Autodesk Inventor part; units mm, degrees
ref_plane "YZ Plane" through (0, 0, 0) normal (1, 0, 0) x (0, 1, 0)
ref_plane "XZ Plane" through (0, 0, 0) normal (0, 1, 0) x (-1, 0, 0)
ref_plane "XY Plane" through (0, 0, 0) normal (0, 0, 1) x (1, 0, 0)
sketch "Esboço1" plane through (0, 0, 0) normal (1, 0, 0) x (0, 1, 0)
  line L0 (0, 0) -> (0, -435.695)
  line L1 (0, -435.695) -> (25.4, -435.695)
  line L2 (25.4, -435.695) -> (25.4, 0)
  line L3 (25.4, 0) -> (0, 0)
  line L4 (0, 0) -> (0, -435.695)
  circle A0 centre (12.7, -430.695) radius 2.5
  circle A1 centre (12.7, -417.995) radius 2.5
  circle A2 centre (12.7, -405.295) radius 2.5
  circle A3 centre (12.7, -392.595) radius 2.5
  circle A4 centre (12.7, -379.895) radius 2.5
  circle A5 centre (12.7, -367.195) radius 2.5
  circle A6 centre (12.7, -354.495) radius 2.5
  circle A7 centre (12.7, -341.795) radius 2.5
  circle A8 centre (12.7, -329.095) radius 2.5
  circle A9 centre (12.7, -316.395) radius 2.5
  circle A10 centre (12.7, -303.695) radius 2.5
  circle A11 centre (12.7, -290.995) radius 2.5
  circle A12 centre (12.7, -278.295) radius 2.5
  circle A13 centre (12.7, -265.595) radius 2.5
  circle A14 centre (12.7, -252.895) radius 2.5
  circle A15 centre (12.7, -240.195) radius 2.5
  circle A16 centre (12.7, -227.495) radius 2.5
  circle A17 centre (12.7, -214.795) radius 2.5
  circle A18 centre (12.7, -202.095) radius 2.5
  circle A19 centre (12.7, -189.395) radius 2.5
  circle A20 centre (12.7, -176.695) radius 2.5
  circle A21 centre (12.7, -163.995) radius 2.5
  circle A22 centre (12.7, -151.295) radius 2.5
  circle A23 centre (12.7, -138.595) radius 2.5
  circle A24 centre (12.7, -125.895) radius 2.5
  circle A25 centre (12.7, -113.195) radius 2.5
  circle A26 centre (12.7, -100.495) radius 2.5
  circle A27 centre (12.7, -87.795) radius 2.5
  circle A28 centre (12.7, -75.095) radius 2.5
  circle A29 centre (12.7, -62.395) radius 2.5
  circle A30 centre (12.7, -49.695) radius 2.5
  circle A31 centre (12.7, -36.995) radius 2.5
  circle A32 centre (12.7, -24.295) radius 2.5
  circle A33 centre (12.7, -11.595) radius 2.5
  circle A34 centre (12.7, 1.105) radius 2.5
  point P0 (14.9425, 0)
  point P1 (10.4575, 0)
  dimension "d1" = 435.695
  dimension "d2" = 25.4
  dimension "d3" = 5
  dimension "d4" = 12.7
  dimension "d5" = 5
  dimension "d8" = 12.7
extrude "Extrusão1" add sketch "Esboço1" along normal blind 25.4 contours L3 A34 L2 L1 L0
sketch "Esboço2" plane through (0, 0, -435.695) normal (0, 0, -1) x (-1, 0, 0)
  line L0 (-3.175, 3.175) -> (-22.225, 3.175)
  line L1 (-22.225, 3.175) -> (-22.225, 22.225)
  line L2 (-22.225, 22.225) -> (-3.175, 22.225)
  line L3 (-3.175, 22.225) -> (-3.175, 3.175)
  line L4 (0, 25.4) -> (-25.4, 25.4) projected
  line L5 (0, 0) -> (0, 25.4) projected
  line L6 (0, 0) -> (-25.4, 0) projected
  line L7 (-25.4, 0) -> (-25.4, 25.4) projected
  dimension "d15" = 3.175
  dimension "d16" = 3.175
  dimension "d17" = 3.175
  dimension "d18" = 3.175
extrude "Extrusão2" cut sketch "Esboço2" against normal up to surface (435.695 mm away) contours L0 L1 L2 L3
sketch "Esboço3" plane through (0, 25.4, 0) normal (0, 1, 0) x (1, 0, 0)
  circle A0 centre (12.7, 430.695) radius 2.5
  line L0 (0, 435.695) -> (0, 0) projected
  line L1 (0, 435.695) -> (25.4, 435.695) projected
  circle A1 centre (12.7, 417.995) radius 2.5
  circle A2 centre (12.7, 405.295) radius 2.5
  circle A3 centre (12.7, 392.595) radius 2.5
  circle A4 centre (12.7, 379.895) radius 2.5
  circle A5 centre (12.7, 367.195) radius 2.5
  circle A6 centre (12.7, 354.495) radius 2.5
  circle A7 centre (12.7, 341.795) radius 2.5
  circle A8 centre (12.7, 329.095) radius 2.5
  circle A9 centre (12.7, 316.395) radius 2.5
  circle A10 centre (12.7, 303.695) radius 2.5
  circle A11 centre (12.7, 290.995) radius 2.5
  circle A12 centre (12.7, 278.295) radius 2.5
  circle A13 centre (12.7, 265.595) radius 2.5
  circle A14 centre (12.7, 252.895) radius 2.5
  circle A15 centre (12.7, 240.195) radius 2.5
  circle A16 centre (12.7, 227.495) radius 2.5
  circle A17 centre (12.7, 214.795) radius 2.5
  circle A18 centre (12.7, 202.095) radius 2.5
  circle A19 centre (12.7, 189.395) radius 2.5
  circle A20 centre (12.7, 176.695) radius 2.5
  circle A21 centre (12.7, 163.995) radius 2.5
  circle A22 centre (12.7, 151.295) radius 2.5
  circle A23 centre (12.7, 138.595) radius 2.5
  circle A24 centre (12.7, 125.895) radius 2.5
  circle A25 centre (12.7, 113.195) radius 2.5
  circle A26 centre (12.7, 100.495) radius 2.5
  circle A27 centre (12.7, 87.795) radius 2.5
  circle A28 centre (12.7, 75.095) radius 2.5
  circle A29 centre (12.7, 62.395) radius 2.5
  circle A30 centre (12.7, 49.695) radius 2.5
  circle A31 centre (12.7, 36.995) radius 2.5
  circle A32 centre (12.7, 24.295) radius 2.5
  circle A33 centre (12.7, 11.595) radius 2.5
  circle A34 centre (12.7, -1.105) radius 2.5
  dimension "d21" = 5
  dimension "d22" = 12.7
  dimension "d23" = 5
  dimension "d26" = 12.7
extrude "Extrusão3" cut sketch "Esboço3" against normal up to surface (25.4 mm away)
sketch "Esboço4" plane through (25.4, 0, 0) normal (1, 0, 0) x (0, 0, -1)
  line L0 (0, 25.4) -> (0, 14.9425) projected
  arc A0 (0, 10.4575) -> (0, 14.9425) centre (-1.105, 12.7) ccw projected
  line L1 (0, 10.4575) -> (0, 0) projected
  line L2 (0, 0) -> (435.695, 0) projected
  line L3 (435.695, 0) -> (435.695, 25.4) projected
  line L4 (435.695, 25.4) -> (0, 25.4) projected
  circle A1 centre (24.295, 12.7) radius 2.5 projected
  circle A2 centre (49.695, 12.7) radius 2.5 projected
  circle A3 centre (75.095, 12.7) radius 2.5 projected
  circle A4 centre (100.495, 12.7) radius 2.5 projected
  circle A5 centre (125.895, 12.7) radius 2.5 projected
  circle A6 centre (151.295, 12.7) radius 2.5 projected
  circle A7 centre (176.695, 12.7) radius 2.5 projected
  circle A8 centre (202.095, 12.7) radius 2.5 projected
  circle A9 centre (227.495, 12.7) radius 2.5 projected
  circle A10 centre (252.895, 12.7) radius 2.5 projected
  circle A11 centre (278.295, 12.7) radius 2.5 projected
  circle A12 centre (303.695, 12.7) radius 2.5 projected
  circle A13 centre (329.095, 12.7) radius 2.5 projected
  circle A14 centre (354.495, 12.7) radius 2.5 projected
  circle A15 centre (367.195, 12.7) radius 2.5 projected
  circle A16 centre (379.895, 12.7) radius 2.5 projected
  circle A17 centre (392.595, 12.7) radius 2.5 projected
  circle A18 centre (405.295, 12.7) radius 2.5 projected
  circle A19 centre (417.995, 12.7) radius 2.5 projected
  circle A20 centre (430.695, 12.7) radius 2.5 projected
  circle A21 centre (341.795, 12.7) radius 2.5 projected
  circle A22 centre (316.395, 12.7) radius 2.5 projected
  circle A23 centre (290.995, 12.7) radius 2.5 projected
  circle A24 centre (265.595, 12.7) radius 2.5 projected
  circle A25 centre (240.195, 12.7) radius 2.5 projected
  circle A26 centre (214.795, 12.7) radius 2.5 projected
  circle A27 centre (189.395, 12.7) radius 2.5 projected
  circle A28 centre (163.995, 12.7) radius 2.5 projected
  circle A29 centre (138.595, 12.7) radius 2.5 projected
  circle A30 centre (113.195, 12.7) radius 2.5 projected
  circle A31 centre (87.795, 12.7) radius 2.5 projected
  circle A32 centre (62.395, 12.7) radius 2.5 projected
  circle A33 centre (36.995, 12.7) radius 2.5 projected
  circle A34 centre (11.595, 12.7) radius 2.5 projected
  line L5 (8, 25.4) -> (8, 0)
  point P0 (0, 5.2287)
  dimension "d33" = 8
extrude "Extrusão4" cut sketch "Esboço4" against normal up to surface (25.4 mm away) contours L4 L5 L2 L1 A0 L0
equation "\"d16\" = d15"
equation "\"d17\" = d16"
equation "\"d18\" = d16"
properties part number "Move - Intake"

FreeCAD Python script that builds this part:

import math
import FreeCAD as App
import Part
import Sketcher

doc = App.newDocument("Part")
body = doc.addObject("PartDesign::Body", "Body")

# Sketch on YZ plane
sketch1 = body.newObject("Sketcher::SketchObject", "Sketch")
sketch1.AttachmentSupport = (doc.getObject("YZ_Plane"), [""])
sketch1.MapMode = "FlatFace"
sketch1.addGeometry(Part.LineSegment(App.Vector(10.457462, 0, 0), App.Vector(0, 0, 0)), False)
sketch1.addGeometry(Part.LineSegment(App.Vector(0, 0, 0), App.Vector(0, -435.695, 0)), False)
sketch1.addGeometry(Part.LineSegment(App.Vector(0, -435.695, 0), App.Vector(25.4, -435.695, 0)), False)
sketch1.addGeometry(Part.LineSegment(App.Vector(25.4, -435.695, 0), App.Vector(25.4, 0, 0)), False)
sketch1.addGeometry(Part.LineSegment(App.Vector(25.4, 0, 0), App.Vector(14.942538, 0, 0)), False)
sketch1.addGeometry(Part.ArcOfCircle(Part.Circle(App.Vector(12.7, 1.105, 0), App.Vector(0, 0, 1), 2.5), math.radians(-153.768441), math.radians(-26.231559)), False)
sketch1.addGeometry(Part.Circle(App.Vector(12.7, -430.695, 0), App.Vector(0, 0, 1), 2.5), False)
sketch1.addGeometry(Part.Circle(App.Vector(12.7, -417.995, 0), App.Vector(0, 0, 1), 2.5), False)
sketch1.addGeometry(Part.Circle(App.Vector(12.7, -405.295, 0), App.Vector(0, 0, 1), 2.5), False)
sketch1.addGeometry(Part.Circle(App.Vector(12.7, -392.595, 0), App.Vector(0, 0, 1), 2.5), False)
sketch1.addGeometry(Part.Circle(App.Vector(12.7, -379.895, 0), App.Vector(0, 0, 1), 2.5), False)
sketch1.addGeometry(Part.Circle(App.Vector(12.7, -367.195, 0), App.Vector(0, 0, 1), 2.5), False)
sketch1.addGeometry(Part.Circle(App.Vector(12.7, -354.495, 0), App.Vector(0, 0, 1), 2.5), False)
sketch1.addGeometry(Part.Circle(App.Vector(12.7, -341.795, 0), App.Vector(0, 0, 1), 2.5), False)
sketch1.addGeometry(Part.Circle(App.Vector(12.7, -329.095, 0), App.Vector(0, 0, 1), 2.5), False)
sketch1.addGeometry(Part.Circle(App.Vector(12.7, -316.395, 0), App.Vector(0, 0, 1), 2.5), False)
sketch1.addGeometry(Part.Circle(App.Vector(12.7, -303.695, 0), App.Vector(0, 0, 1), 2.5), False)
sketch1.addGeometry(Part.Circle(App.Vector(12.7, -290.995, 0), App.Vector(0, 0, 1), 2.5), False)
sketch1.addGeometry(Part.Circle(App.Vector(12.7, -278.295, 0), App.Vector(0, 0, 1), 2.5), False)
sketch1.addGeometry(Part.Circle(App.Vector(12.7, -265.595, 0), App.Vector(0, 0, 1), 2.5), False)
sketch1.addGeometry(Part.Circle(App.Vector(12.7, -252.895, 0), App.Vector(0, 0, 1), 2.5), False)
sketch1.addGeometry(Part.Circle(App.Vector(12.7, -240.195, 0), App.Vector(0, 0, 1), 2.5), False)
sketch1.addGeometry(Part.Circle(App.Vector(12.7, -227.495, 0), App.Vector(0, 0, 1), 2.5), False)
sketch1.addGeometry(Part.Circle(App.Vector(12.7, -214.795, 0), App.Vector(0, 0, 1), 2.5), False)
sketch1.addGeometry(Part.Circle(App.Vector(12.7, -202.095, 0), App.Vector(0, 0, 1), 2.5), False)
sketch1.addGeometry(Part.Circle(App.Vector(12.7, -189.395, 0), App.Vector(0, 0, 1), 2.5), False)
sketch1.addGeometry(Part.Circle(App.Vector(12.7, -176.695, 0), App.Vector(0, 0, 1), 2.5), False)
sketch1.addGeometry(Part.Circle(App.Vector(12.7, -163.995, 0), App.Vector(0, 0, 1), 2.5), False)
sketch1.addGeometry(Part.Circle(App.Vector(12.7, -151.295, 0), App.Vector(0, 0, 1), 2.5), False)
sketch1.addGeometry(Part.Circle(App.Vector(12.7, -138.595, 0), App.Vector(0, 0, 1), 2.5), False)
sketch1.addGeometry(Part.Circle(App.Vector(12.7, -125.895, 0), App.Vector(0, 0, 1), 2.5), False)
sketch1.addGeometry(Part.Circle(App.Vector(12.7, -113.195, 0), App.Vector(0, 0, 1), 2.5), False)
sketch1.addGeometry(Part.Circle(App.Vector(12.7, -100.495, 0), App.Vector(0, 0, 1), 2.5), False)
sketch1.addGeometry(Part.Circle(App.Vector(12.7, -87.795, 0), App.Vector(0, 0, 1), 2.5), False)
sketch1.addGeometry(Part.Circle(App.Vector(12.7, -75.095, 0), App.Vector(0, 0, 1), 2.5), False)
sketch1.addGeometry(Part.Circle(App.Vector(12.7, -62.395, 0), App.Vector(0, 0, 1), 2.5), False)
sketch1.addGeometry(Part.Circle(App.Vector(12.7, -49.695, 0), App.Vector(0, 0, 1), 2.5), False)
sketch1.addGeometry(Part.Circle(App.Vector(12.7, -36.995, 0), App.Vector(0, 0, 1), 2.5), False)
sketch1.addGeometry(Part.Circle(App.Vector(12.7, -24.295, 0), App.Vector(0, 0, 1), 2.5), False)
sketch1.addGeometry(Part.Circle(App.Vector(12.7, -11.595, 0), App.Vector(0, 0, 1), 2.5), False)
sketch1.addConstraint(Sketcher.Constraint("Coincident", 0, 2, 1, 1))
sketch1.addConstraint(Sketcher.Constraint("Coincident", 1, 2, 2, 1))
sketch1.addConstraint(Sketcher.Constraint("Coincident", 2, 2, 3, 1))
sketch1.addConstraint(Sketcher.Constraint("Coincident", 3, 2, 4, 1))
sketch1.addConstraint(Sketcher.Constraint("Coincident", 4, 2, 5, 2))
sketch1.addConstraint(Sketcher.Constraint("Coincident", 5, 1, 0, 1))
sketch1.addConstraint(Sketcher.Constraint("Horizontal", 0))
sketch1.addConstraint(Sketcher.Constraint("Vertical", 1))
sketch1.addConstraint(Sketcher.Constraint("Horizontal", 2))
sketch1.addConstraint(Sketcher.Constraint("Vertical", 3))
sketch1.addConstraint(Sketcher.Constraint("Horizontal", 4))
sketch1.addConstraint(Sketcher.Constraint("Coincident", 0, 2, -1, 1))
sketch1.addConstraint(Sketcher.Constraint("Equal", 5, 6))
sketch1.addConstraint(Sketcher.Constraint("Equal", 6, 7))
sketch1.addConstraint(Sketcher.Constraint("Equal", 7, 8))
sketch1.addConstraint(Sketcher.Constraint("Equal", 8, 9))
sketch1.addConstraint(Sketcher.Constraint("Equal", 9, 10))
sketch1.addConstraint(Sketcher.Constraint("Equal", 10, 11))
sketch1.addConstraint(Sketcher.Constraint("Equal", 11, 12))
sketch1.addConstraint(Sketcher.Constraint("Equal", 12, 13))
sketch1.addConstraint(Sketcher.Constraint("Equal", 13, 14))
sketch1.addConstraint(Sketcher.Constraint("Equal", 14, 15))
sketch1.addConstraint(Sketcher.Constraint("Equal", 15, 16))
sketch1.addConstraint(Sketcher.Constraint("Equal", 16, 17))
sketch1.addConstraint(Sketcher.Constraint("Equal", 17, 18))
sketch1.addConstraint(Sketcher.Constraint("Equal", 18, 19))
sketch1.addConstraint(Sketcher.Constraint("Equal", 19, 20))
sketch1.addConstraint(Sketcher.Constraint("Equal", 20, 21))
sketch1.addConstraint(Sketcher.Constraint("Equal", 21, 22))
sketch1.addConstraint(Sketcher.Constraint("Equal", 22, 23))
sketch1.addConstraint(Sketcher.Constraint("Equal", 23, 24))
sketch1.addConstraint(Sketcher.Constraint("Equal", 24, 25))
sketch1.addConstraint(Sketcher.Constraint("Equal", 25, 26))
sketch1.addConstraint(Sketcher.Constraint("Equal", 26, 27))
sketch1.addConstraint(Sketcher.Constraint("Equal", 27, 28))
sketch1.addConstraint(Sketcher.Constraint("Equal", 28, 29))
sketch1.addConstraint(Sketcher.Constraint("Equal", 29, 30))
sketch1.addConstraint(Sketcher.Constraint("Equal", 30, 31))
sketch1.addConstraint(Sketcher.Constraint("Equal", 31, 32))
sketch1.addConstraint(Sketcher.Constraint("Equal", 32, 33))
sketch1.addConstraint(Sketcher.Constraint("Equal", 33, 34))
sketch1.addConstraint(Sketcher.Constraint("Equal", 34, 35))
sketch1.addConstraint(Sketcher.Constraint("Equal", 35, 36))
sketch1.addConstraint(Sketcher.Constraint("Equal", 36, 37))
sketch1.addConstraint(Sketcher.Constraint("Equal", 37, 38))
sketch1.addConstraint(Sketcher.Constraint("Equal", 38, 39))
sketch1.addConstraint(Sketcher.Constraint("PointOnObject", 3, 2, -1))
sketch1.addConstraint(Sketcher.Constraint("Vertical", 5, 3, 6, 3))
sketch1.addConstraint(Sketcher.Constraint("Vertical", 6, 3, 7, 3))
sketch1.addConstraint(Sketcher.Constraint("Vertical", 7, 3, 8, 3))
sketch1.addConstraint(Sketcher.Constraint("Vertical", 8, 3, 9, 3))
sketch1.addConstraint(Sketcher.Constraint("Vertical", 9, 3, 10, 3))
sketch1.addConstraint(Sketcher.Constraint("Vertical", 10, 3, 11, 3))
sketch1.addConstraint(Sketcher.Constraint("Vertical", 11, 3, 12, 3))
sketch1.addConstraint(Sketcher.Constraint("Vertical", 12, 3, 13, 3))
sketch1.addConstraint(Sketcher.Constraint("Vertical", 13, 3, 14, 3))
sketch1.addConstraint(Sketcher.Constraint("Vertical", 14, 3, 15, 3))
sketch1.addConstraint(Sketcher.Constraint("Vertical", 15, 3, 16, 3))
sketch1.addConstraint(Sketcher.Constraint("Vertical", 16, 3, 17, 3))
sketch1.addConstraint(Sketcher.Constraint("Vertical", 17, 3, 18, 3))
sketch1.addConstraint(Sketcher.Constraint("Vertical", 18, 3, 19, 3))
sketch1.addConstraint(Sketcher.Constraint("Vertical", 19, 3, 20, 3))
sketch1.addConstraint(Sketcher.Constraint("Vertical", 20, 3, 21, 3))
sketch1.addConstraint(Sketcher.Constraint("Vertical", 21, 3, 22, 3))
sketch1.addConstraint(Sketcher.Constraint("Vertical", 22, 3, 23, 3))
sketch1.addConstraint(Sketcher.Constraint("Vertical", 23, 3, 24, 3))
sketch1.addConstraint(Sketcher.Constraint("Vertical", 24, 3, 25, 3))
sketch1.addConstraint(Sketcher.Constraint("Vertical", 25, 3, 26, 3))
sketch1.addConstraint(Sketcher.Constraint("Vertical", 26, 3, 27, 3))
sketch1.addConstraint(Sketcher.Constraint("Vertical", 27, 3, 28, 3))
sketch1.addConstraint(Sketcher.Constraint("Vertical", 28, 3, 29, 3))
sketch1.addConstraint(Sketcher.Constraint("Vertical", 29, 3, 30, 3))
sketch1.addConstraint(Sketcher.Constraint("Vertical", 30, 3, 31, 3))
sketch1.addConstraint(Sketcher.Constraint("Vertical", 31, 3, 32, 3))
sketch1.addConstraint(Sketcher.Constraint("Vertical", 32, 3, 33, 3))
sketch1.addConstraint(Sketcher.Constraint("Vertical", 33, 3, 34, 3))
sketch1.addConstraint(Sketcher.Constraint("Vertical", 34, 3, 35, 3))
sketch1.addConstraint(Sketcher.Constraint("Vertical", 35, 3, 36, 3))
sketch1.addConstraint(Sketcher.Constraint("Vertical", 36, 3, 37, 3))
sketch1.addConstraint(Sketcher.Constraint("Vertical", 37, 3, 38, 3))
sketch1.addConstraint(Sketcher.Constraint("Vertical", 38, 3, 39, 3))
sketch1.addConstraint(Sketcher.Constraint("Equal", 0, 4))
sketch1.addConstraint(Sketcher.Constraint("Diameter", 6, 5.0))
sketch1.addConstraint(Sketcher.Constraint("DistanceX", 2, 1, 2, 2, 25.4))
sketch1.addConstraint(Sketcher.Constraint("DistanceY", 1, 2, 6, 3, 5.0))
sketch1.addConstraint(Sketcher.Constraint("DistanceY", 6, 3, 7, 3, 12.7))
sketch1.addConstraint(Sketcher.Constraint("DistanceY", 7, 3, 8, 3, 12.7))
sketch1.addConstraint(Sketcher.Constraint("DistanceY", 8, 3, 9, 3, 12.7))
sketch1.addConstraint(Sketcher.Constraint("DistanceY", 9, 3, 10, 3, 12.7))
sketch1.addConstraint(Sketcher.Constraint("DistanceY", 10, 3, 11, 3, 12.7))
sketch1.addConstraint(Sketcher.Constraint("DistanceY", 11, 3, 12, 3, 12.7))
sketch1.addConstraint(Sketcher.Constraint("DistanceY", 12, 3, 13, 3, 12.7))
sketch1.addConstraint(Sketcher.Constraint("DistanceY", 13, 3, 14, 3, 12.7))
sketch1.addConstraint(Sketcher.Constraint("DistanceY", 14, 3, 15, 3, 12.7))
sketch1.addConstraint(Sketcher.Constraint("DistanceY", 15, 3, 16, 3, 12.7))
sketch1.addConstraint(Sketcher.Constraint("DistanceY", 16, 3, 17, 3, 12.7))
sketch1.addConstraint(Sketcher.Constraint("DistanceY", 17, 3, 18, 3, 12.7))
sketch1.addConstraint(Sketcher.Constraint("DistanceY", 18, 3, 19, 3, 12.7))
sketch1.addConstraint(Sketcher.Constraint("DistanceY", 19, 3, 20, 3, 12.7))
sketch1.addConstraint(Sketcher.Constraint("DistanceY", 20, 3, 21, 3, 12.7))
sketch1.addConstraint(Sketcher.Constraint("DistanceY", 21, 3, 22, 3, 12.7))
sketch1.addConstraint(Sketcher.Constraint("DistanceY", 22, 3, 23, 3, 12.7))
sketch1.addConstraint(Sketcher.Constraint("DistanceY", 23, 3, 24, 3, 12.7))
sketch1.addConstraint(Sketcher.Constraint("DistanceY", 24, 3, 25, 3, 12.7))
sketch1.addConstraint(Sketcher.Constraint("DistanceY", 25, 3, 26, 3, 12.7))
sketch1.addConstraint(Sketcher.Constraint("DistanceY", 26, 3, 27, 3, 12.7))
sketch1.addConstraint(Sketcher.Constraint("DistanceY", 27, 3, 28, 3, 12.7))
sketch1.addConstraint(Sketcher.Constraint("DistanceY", 28, 3, 29, 3, 12.7))
sketch1.addConstraint(Sketcher.Constraint("DistanceY", 29, 3, 30, 3, 12.7))
sketch1.addConstraint(Sketcher.Constraint("DistanceY", 30, 3, 31, 3, 12.7))
sketch1.addConstraint(Sketcher.Constraint("DistanceY", 31, 3, 32, 3, 12.7))
sketch1.addConstraint(Sketcher.Constraint("DistanceY", 32, 3, 33, 3, 12.7))
sketch1.addConstraint(Sketcher.Constraint("DistanceY", 33, 3, 34, 3, 12.7))
sketch1.addConstraint(Sketcher.Constraint("DistanceY", 34, 3, 35, 3, 12.7))
sketch1.addConstraint(Sketcher.Constraint("DistanceY", 35, 3, 36, 3, 12.7))
sketch1.addConstraint(Sketcher.Constraint("DistanceY", 36, 3, 37, 3, 12.7))
sketch1.addConstraint(Sketcher.Constraint("DistanceY", 37, 3, 38, 3, 12.7))
sketch1.addConstraint(Sketcher.Constraint("DistanceY", 38, 3, 5, 3, 25.4))
sketch1.addConstraint(Sketcher.Constraint("DistanceY", 39, 3, 5, 3, 12.7))
sketch1.addConstraint(Sketcher.Constraint("DistanceY", 1, 2, 1, 1, 435.695))
pad1 = body.newObject("PartDesign::Pad", "Pad")
pad1.Profile = sketch1
pad1.Length = 25.4

# Sketch on XY plane
sketch2 = body.newObject("Sketcher::SketchObject", "Sketch001")
sketch2.AttachmentSupport = (doc.getObject("XY_Plane"), [""])
sketch2.MapMode = "FlatFace"
sketch2.AttachmentOffset = App.Placement(App.Vector(0, 0, -435.695), App.Rotation())
sketch2.addGeometry(Part.LineSegment(App.Vector(22.225, 3.175, 0), App.Vector(3.175, 3.175, 0)), False)
sketch2.addGeometry(Part.LineSegment(App.Vector(3.175, 3.175, 0), App.Vector(3.175, 22.225, 0)), False)
sketch2.addGeometry(Part.LineSegment(App.Vector(3.175, 22.225, 0), App.Vector(22.225, 22.225, 0)), False)
sketch2.addGeometry(Part.LineSegment(App.Vector(22.225, 22.225, 0), App.Vector(22.225, 3.175, 0)), False)
sketch2.addConstraint(Sketcher.Constraint("Coincident", 0, 2, 1, 1))
sketch2.addConstraint(Sketcher.Constraint("Coincident", 1, 2, 2, 1))
sketch2.addConstraint(Sketcher.Constraint("Coincident", 2, 2, 3, 1))
sketch2.addConstraint(Sketcher.Constraint("Coincident", 3, 2, 0, 1))
sketch2.addConstraint(Sketcher.Constraint("Horizontal", 0))
sketch2.addConstraint(Sketcher.Constraint("Vertical", 1))
sketch2.addConstraint(Sketcher.Constraint("Horizontal", 2))
sketch2.addConstraint(Sketcher.Constraint("Vertical", 3))
sketch2.addConstraint(Sketcher.Constraint("Equal", 2, 1))
sketch2.addConstraint(Sketcher.Constraint("DistanceX", -1, 1, 0, 2, 3.175))
sketch2.addConstraint(Sketcher.Constraint("DistanceY", -1, 1, 0, 2, 3.175))
sketch2.addConstraint(Sketcher.Constraint("DistanceX", 0, 2, 0, 1, 19.05))
pocket1 = body.newObject("PartDesign::Pocket", "Pocket")
pocket1.Profile = sketch2
pocket1.Length = 435.695
pocket1.Reversed = True

# Sketch on XZ plane
sketch3 = body.newObject("Sketcher::SketchObject", "Sketch002")
sketch3.AttachmentSupport = (doc.getObject("XZ_Plane"), [""])
sketch3.MapMode = "FlatFace"
sketch3.AttachmentOffset = App.Placement(App.Vector(0, 0, -25.4), App.Rotation())
sketch3.addGeometry(Part.Circle(App.Vector(12.7, -430.695, 0), App.Vector(0, 0, 1), 2.5), False)
sketch3.addGeometry(Part.Circle(App.Vector(12.7, -417.995, 0), App.Vector(0, 0, 1), 2.5), False)
sketch3.addGeometry(Part.Circle(App.Vector(12.7, -405.295, 0), App.Vector(0, 0, 1), 2.5), False)
sketch3.addGeometry(Part.Circle(App.Vector(12.7, -392.595, 0), App.Vector(0, 0, 1), 2.5), False)
sketch3.addGeometry(Part.Circle(App.Vector(12.7, -379.895, 0), App.Vector(0, 0, 1), 2.5), False)
sketch3.addGeometry(Part.Circle(App.Vector(12.7, -367.195, 0), App.Vector(0, 0, 1), 2.5), False)
sketch3.addGeometry(Part.Circle(App.Vector(12.7, -354.495, 0), App.Vector(0, 0, 1), 2.5), False)
sketch3.addGeometry(Part.Circle(App.Vector(12.7, -341.795, 0), App.Vector(0, 0, 1), 2.5), False)
sketch3.addGeometry(Part.Circle(App.Vector(12.7, -329.095, 0), App.Vector(0, 0, 1), 2.5), False)
sketch3.addGeometry(Part.Circle(App.Vector(12.7, -316.395, 0), App.Vector(0, 0, 1), 2.5), False)
sketch3.addGeometry(Part.Circle(App.Vector(12.7, -303.695, 0), App.Vector(0, 0, 1), 2.5), False)
sketch3.addGeometry(Part.Circle(App.Vector(12.7, -290.995, 0), App.Vector(0, 0, 1), 2.5), False)
sketch3.addGeometry(Part.Circle(App.Vector(12.7, -278.295, 0), App.Vector(0, 0, 1), 2.5), False)
sketch3.addGeometry(Part.Circle(App.Vector(12.7, -265.595, 0), App.Vector(0, 0, 1), 2.5), False)
sketch3.addGeometry(Part.Circle(App.Vector(12.7, -252.895, 0), App.Vector(0, 0, 1), 2.5), False)
sketch3.addGeometry(Part.Circle(App.Vector(12.7, -240.195, 0), App.Vector(0, 0, 1), 2.5), False)
sketch3.addGeometry(Part.Circle(App.Vector(12.7, -227.495, 0), App.Vector(0, 0, 1), 2.5), False)
sketch3.addGeometry(Part.Circle(App.Vector(12.7, -214.795, 0), App.Vector(0, 0, 1), 2.5), False)
sketch3.addGeometry(Part.Circle(App.Vector(12.7, -202.095, 0), App.Vector(0, 0, 1), 2.5), False)
sketch3.addGeometry(Part.Circle(App.Vector(12.7, -189.395, 0), App.Vector(0, 0, 1), 2.5), False)
sketch3.addGeometry(Part.Circle(App.Vector(12.7, -176.695, 0), App.Vector(0, 0, 1), 2.5), False)
sketch3.addGeometry(Part.Circle(App.Vector(12.7, -163.995, 0), App.Vector(0, 0, 1), 2.5), False)
sketch3.addGeometry(Part.Circle(App.Vector(12.7, -151.295, 0), App.Vector(0, 0, 1), 2.5), False)
sketch3.addGeometry(Part.Circle(App.Vector(12.7, -138.595, 0), App.Vector(0, 0, 1), 2.5), False)
sketch3.addGeometry(Part.Circle(App.Vector(12.7, -125.895, 0), App.Vector(0, 0, 1), 2.5), False)
sketch3.addGeometry(Part.Circle(App.Vector(12.7, -113.195, 0), App.Vector(0, 0, 1), 2.5), False)
sketch3.addGeometry(Part.Circle(App.Vector(12.7, -100.495, 0), App.Vector(0, 0, 1), 2.5), False)
sketch3.addGeometry(Part.Circle(App.Vector(12.7, -87.795, 0), App.Vector(0, 0, 1), 2.5), False)
sketch3.addGeometry(Part.Circle(App.Vector(12.7, -75.095, 0), App.Vector(0, 0, 1), 2.5), False)
sketch3.addGeometry(Part.Circle(App.Vector(12.7, -62.395, 0), App.Vector(0, 0, 1), 2.5), False)
sketch3.addGeometry(Part.Circle(App.Vector(12.7, -49.695, 0), App.Vector(0, 0, 1), 2.5), False)
sketch3.addGeometry(Part.Circle(App.Vector(12.7, -36.995, 0), App.Vector(0, 0, 1), 2.5), False)
sketch3.addGeometry(Part.Circle(App.Vector(12.7, -24.295, 0), App.Vector(0, 0, 1), 2.5), False)
sketch3.addGeometry(Part.Circle(App.Vector(12.7, -11.595, 0), App.Vector(0, 0, 1), 2.5), False)
sketch3.addGeometry(Part.Circle(App.Vector(12.7, 1.105, 0), App.Vector(0, 0, 1), 2.5), False)
sketch3.addConstraint(Sketcher.Constraint("Equal", 0, 1))
sketch3.addConstraint(Sketcher.Constraint("Equal", 1, 2))
sketch3.addConstraint(Sketcher.Constraint("Equal", 2, 3))
sketch3.addConstraint(Sketcher.Constraint("Equal", 3, 4))
sketch3.addConstraint(Sketcher.Constraint("Equal", 4, 5))
sketch3.addConstraint(Sketcher.Constraint("Equal", 5, 6))
sketch3.addConstraint(Sketcher.Constraint("Equal", 6, 7))
sketch3.addConstraint(Sketcher.Constraint("Equal", 7, 8))
sketch3.addConstraint(Sketcher.Constraint("Equal", 8, 9))
sketch3.addConstraint(Sketcher.Constraint("Equal", 9, 10))
sketch3.addConstraint(Sketcher.Constraint("Equal", 10, 11))
sketch3.addConstraint(Sketcher.Constraint("Equal", 11, 12))
sketch3.addConstraint(Sketcher.Constraint("Equal", 12, 13))
sketch3.addConstraint(Sketcher.Constraint("Equal", 13, 14))
sketch3.addConstraint(Sketcher.Constraint("Equal", 14, 15))
sketch3.addConstraint(Sketcher.Constraint("Equal", 15, 16))
sketch3.addConstraint(Sketcher.Constraint("Equal", 16, 17))
sketch3.addConstraint(Sketcher.Constraint("Equal", 17, 18))
sketch3.addConstraint(Sketcher.Constraint("Equal", 18, 19))
sketch3.addConstraint(Sketcher.Constraint("Equal", 19, 20))
sketch3.addConstraint(Sketcher.Constraint("Equal", 20, 21))
sketch3.addConstraint(Sketcher.Constraint("Equal", 21, 22))
sketch3.addConstraint(Sketcher.Constraint("Equal", 22, 23))
sketch3.addConstraint(Sketcher.Constraint("Equal", 23, 24))
sketch3.addConstraint(Sketcher.Constraint("Equal", 24, 25))
sketch3.addConstraint(Sketcher.Constraint("Equal", 25, 26))
sketch3.addConstraint(Sketcher.Constraint("Equal", 26, 27))
sketch3.addConstraint(Sketcher.Constraint("Equal", 27, 28))
sketch3.addConstraint(Sketcher.Constraint("Equal", 28, 29))
sketch3.addConstraint(Sketcher.Constraint("Equal", 29, 30))
sketch3.addConstraint(Sketcher.Constraint("Equal", 30, 31))
sketch3.addConstraint(Sketcher.Constraint("Equal", 31, 32))
sketch3.addConstraint(Sketcher.Constraint("Equal", 32, 33))
sketch3.addConstraint(Sketcher.Constraint("Equal", 33, 34))
sketch3.addConstraint(Sketcher.Constraint("Vertical", 0, 3, 1, 3))
sketch3.addConstraint(Sketcher.Constraint("Vertical", 1, 3, 2, 3))
sketch3.addConstraint(Sketcher.Constraint("Vertical", 2, 3, 3, 3))
sketch3.addConstraint(Sketcher.Constraint("Vertical", 3, 3, 4, 3))
sketch3.addConstraint(Sketcher.Constraint("Vertical", 4, 3, 5, 3))
sketch3.addConstraint(Sketcher.Constraint("Vertical", 5, 3, 6, 3))
sketch3.addConstraint(Sketcher.Constraint("Vertical", 6, 3, 7, 3))
sketch3.addConstraint(Sketcher.Constraint("Vertical", 7, 3, 8, 3))
sketch3.addConstraint(Sketcher.Constraint("Vertical", 8, 3, 9, 3))
sketch3.addConstraint(Sketcher.Constraint("Vertical", 9, 3, 10, 3))
sketch3.addConstraint(Sketcher.Constraint("Vertical", 10, 3, 11, 3))
sketch3.addConstraint(Sketcher.Constraint("Vertical", 11, 3, 12, 3))
sketch3.addConstraint(Sketcher.Constraint("Vertical", 12, 3, 13, 3))
sketch3.addConstraint(Sketcher.Constraint("Vertical", 13, 3, 14, 3))
sketch3.addConstraint(Sketcher.Constraint("Vertical", 14, 3, 15, 3))
sketch3.addConstraint(Sketcher.Constraint("Vertical", 15, 3, 16, 3))
sketch3.addConstraint(Sketcher.Constraint("Vertical", 16, 3, 17, 3))
sketch3.addConstraint(Sketcher.Constraint("Vertical", 17, 3, 18, 3))
sketch3.addConstraint(Sketcher.Constraint("Vertical", 18, 3, 19, 3))
sketch3.addConstraint(Sketcher.Constraint("Vertical", 19, 3, 20, 3))
sketch3.addConstraint(Sketcher.Constraint("Vertical", 20, 3, 21, 3))
sketch3.addConstraint(Sketcher.Constraint("Vertical", 21, 3, 22, 3))
sketch3.addConstraint(Sketcher.Constraint("Vertical", 22, 3, 23, 3))
sketch3.addConstraint(Sketcher.Constraint("Vertical", 23, 3, 24, 3))
sketch3.addConstraint(Sketcher.Constraint("Vertical", 24, 3, 25, 3))
sketch3.addConstraint(Sketcher.Constraint("Vertical", 25, 3, 26, 3))
sketch3.addConstraint(Sketcher.Constraint("Vertical", 26, 3, 27, 3))
sketch3.addConstraint(Sketcher.Constraint("Vertical", 27, 3, 28, 3))
sketch3.addConstraint(Sketcher.Constraint("Vertical", 28, 3, 29, 3))
sketch3.addConstraint(Sketcher.Constraint("Vertical", 29, 3, 30, 3))
sketch3.addConstraint(Sketcher.Constraint("Vertical", 30, 3, 31, 3))
sketch3.addConstraint(Sketcher.Constraint("Vertical", 31, 3, 32, 3))
sketch3.addConstraint(Sketcher.Constraint("Vertical", 32, 3, 33, 3))
sketch3.addConstraint(Sketcher.Constraint("Vertical", 33, 3, 34, 3))
sketch3.addConstraint(Sketcher.Constraint("Diameter", 0, 5.0))
sketch3.addConstraint(Sketcher.Constraint("DistanceX", -1, 1, 0, 3, 12.7))
sketch3.addConstraint(Sketcher.Constraint("DistanceY", 0, 3, 1, 3, 12.7))
sketch3.addConstraint(Sketcher.Constraint("DistanceY", 1, 3, 2, 3, 12.7))
sketch3.addConstraint(Sketcher.Constraint("DistanceY", 2, 3, 3, 3, 12.7))
sketch3.addConstraint(Sketcher.Constraint("DistanceY", 3, 3, 4, 3, 12.7))
sketch3.addConstraint(Sketcher.Constraint("DistanceY", 4, 3, 5, 3, 12.7))
sketch3.addConstraint(Sketcher.Constraint("DistanceY", 5, 3, 6, 3, 12.7))
sketch3.addConstraint(Sketcher.Constraint("DistanceY", 6, 3, 7, 3, 12.7))
sketch3.addConstraint(Sketcher.Constraint("DistanceY", 7, 3, 8, 3, 12.7))
sketch3.addConstraint(Sketcher.Constraint("DistanceY", 8, 3, 9, 3, 12.7))
sketch3.addConstraint(Sketcher.Constraint("DistanceY", 9, 3, 10, 3, 12.7))
sketch3.addConstraint(Sketcher.Constraint("DistanceY", 10, 3, 11, 3, 12.7))
sketch3.addConstraint(Sketcher.Constraint("DistanceY", 11, 3, 12, 3, 12.7))
sketch3.addConstraint(Sketcher.Constraint("DistanceY", 12, 3, 13, 3, 12.7))
sketch3.addConstraint(Sketcher.Constraint("DistanceY", 13, 3, 14, 3, 12.7))
sketch3.addConstraint(Sketcher.Constraint("DistanceY", 14, 3, 15, 3, 12.7))
sketch3.addConstraint(Sketcher.Constraint("DistanceY", 15, 3, 16, 3, 12.7))
sketch3.addConstraint(Sketcher.Constraint("DistanceY", 16, 3, 17, 3, 12.7))
sketch3.addConstraint(Sketcher.Constraint("DistanceY", 17, 3, 18, 3, 12.7))
sketch3.addConstraint(Sketcher.Constraint("DistanceY", 18, 3, 19, 3, 12.7))
sketch3.addConstraint(Sketcher.Constraint("DistanceY", 19, 3, 20, 3, 12.7))
sketch3.addConstraint(Sketcher.Constraint("DistanceY", 20, 3, 21, 3, 12.7))
sketch3.addConstraint(Sketcher.Constraint("DistanceY", 21, 3, 22, 3, 12.7))
sketch3.addConstraint(Sketcher.Constraint("DistanceY", 22, 3, 23, 3, 12.7))
sketch3.addConstraint(Sketcher.Constraint("DistanceY", 23, 3, 24, 3, 12.7))
sketch3.addConstraint(Sketcher.Constraint("DistanceY", 24, 3, 25, 3, 12.7))
sketch3.addConstraint(Sketcher.Constraint("DistanceY", 25, 3, 26, 3, 12.7))
sketch3.addConstraint(Sketcher.Constraint("DistanceY", 26, 3, 27, 3, 12.7))
sketch3.addConstraint(Sketcher.Constraint("DistanceY", 27, 3, 28, 3, 12.7))
sketch3.addConstraint(Sketcher.Constraint("DistanceY", 28, 3, 29, 3, 12.7))
sketch3.addConstraint(Sketcher.Constraint("DistanceY", 29, 3, 30, 3, 12.7))
sketch3.addConstraint(Sketcher.Constraint("DistanceY", 30, 3, 31, 3, 12.7))
sketch3.addConstraint(Sketcher.Constraint("DistanceY", 31, 3, 32, 3, 12.7))
sketch3.addConstraint(Sketcher.Constraint("DistanceY", 32, 3, 33, 3, 12.7))
sketch3.addConstraint(Sketcher.Constraint("DistanceY", 33, 3, 34, 3, 12.7))
sketch3.addConstraint(Sketcher.Constraint("DistanceY", 0, 3, -1, 1, 430.695))
pocket2 = body.newObject("PartDesign::Pocket", "Pocket001")
pocket2.Profile = sketch3
pocket2.Length = 25.4
pocket2.Reversed = True

# Sketch on YZ plane
sketch4 = body.newObject("Sketcher::SketchObject", "Sketch003")
sketch4.AttachmentSupport = (doc.getObject("YZ_Plane"), [""])
sketch4.MapMode = "FlatFace"
sketch4.AttachmentOffset = App.Placement(App.Vector(0, 0, 25.4), App.Rotation())
sketch4.addGeometry(Part.LineSegment(App.Vector(25.4, -8, 0), App.Vector(25.4, 0, 0)), False)
sketch4.addGeometry(Part.LineSegment(App.Vector(25.4, 0, 0), App.Vector(14.9425, 0, 0)), False)
sketch4.addGeometry(Part.ArcOfCircle(Part.Circle(App.Vector(12.7, 1.105, 0), App.Vector(0, 0, 1), 2.499966), math.radians(-153.76806), math.radians(-26.23194)), False)
sketch4.addGeometry(Part.LineSegment(App.Vector(10.4575, 0, 0), App.Vector(0, 0, 0)), False)
sketch4.addGeometry(Part.LineSegment(App.Vector(0, 0, 0), App.Vector(0, -8, 0)), False)
sketch4.addGeometry(Part.LineSegment(App.Vector(0, -8, 0), App.Vector(25.4, -8, 0)), False)
sketch4.addConstraint(Sketcher.Constraint("Coincident", 0, 2, 1, 1))
sketch4.addConstraint(Sketcher.Constraint("Coincident", 1, 2, 2, 2))
sketch4.addConstraint(Sketcher.Constraint("Coincident", 2, 1, 3, 1))
sketch4.addConstraint(Sketcher.Constraint("Coincident", 3, 2, 4, 1))
sketch4.addConstraint(Sketcher.Constraint("Coincident", 4, 2, 5, 1))
sketch4.addConstraint(Sketcher.Constraint("Coincident", 5, 2, 0, 1))
sketch4.addConstraint(Sketcher.Constraint("Vertical", 0))
sketch4.addConstraint(Sketcher.Constraint("Horizontal", 1))
sketch4.addConstraint(Sketcher.Constraint("Horizontal", 3))
sketch4.addConstraint(Sketcher.Constraint("Vertical", 4))
sketch4.addConstraint(Sketcher.Constraint("Horizontal", 5))
sketch4.addConstraint(Sketcher.Constraint("Coincident", 3, 2, -1, 1))
sketch4.addConstraint(Sketcher.Constraint("PointOnObject", 0, 2, -1))
sketch4.addConstraint(Sketcher.Constraint("Equal", 1, 3))
sketch4.addConstraint(Sketcher.Constraint("DistanceY", 0, 1, 0, 2, 8.0))
sketch4.addConstraint(Sketcher.Constraint("Radius", 2, 2.5))
sketch4.addConstraint(Sketcher.Constraint("DistanceX", 5, 1, 5, 2, 25.4))
sketch4.addConstraint(Sketcher.Constraint("DistanceX", 1, 2, 1, 1, 10.4575))
pocket3 = body.newObject("PartDesign::Pocket", "Pocket002")
pocket3.Profile = sketch4
pocket3.Length = 25.4

doc.recompute()
